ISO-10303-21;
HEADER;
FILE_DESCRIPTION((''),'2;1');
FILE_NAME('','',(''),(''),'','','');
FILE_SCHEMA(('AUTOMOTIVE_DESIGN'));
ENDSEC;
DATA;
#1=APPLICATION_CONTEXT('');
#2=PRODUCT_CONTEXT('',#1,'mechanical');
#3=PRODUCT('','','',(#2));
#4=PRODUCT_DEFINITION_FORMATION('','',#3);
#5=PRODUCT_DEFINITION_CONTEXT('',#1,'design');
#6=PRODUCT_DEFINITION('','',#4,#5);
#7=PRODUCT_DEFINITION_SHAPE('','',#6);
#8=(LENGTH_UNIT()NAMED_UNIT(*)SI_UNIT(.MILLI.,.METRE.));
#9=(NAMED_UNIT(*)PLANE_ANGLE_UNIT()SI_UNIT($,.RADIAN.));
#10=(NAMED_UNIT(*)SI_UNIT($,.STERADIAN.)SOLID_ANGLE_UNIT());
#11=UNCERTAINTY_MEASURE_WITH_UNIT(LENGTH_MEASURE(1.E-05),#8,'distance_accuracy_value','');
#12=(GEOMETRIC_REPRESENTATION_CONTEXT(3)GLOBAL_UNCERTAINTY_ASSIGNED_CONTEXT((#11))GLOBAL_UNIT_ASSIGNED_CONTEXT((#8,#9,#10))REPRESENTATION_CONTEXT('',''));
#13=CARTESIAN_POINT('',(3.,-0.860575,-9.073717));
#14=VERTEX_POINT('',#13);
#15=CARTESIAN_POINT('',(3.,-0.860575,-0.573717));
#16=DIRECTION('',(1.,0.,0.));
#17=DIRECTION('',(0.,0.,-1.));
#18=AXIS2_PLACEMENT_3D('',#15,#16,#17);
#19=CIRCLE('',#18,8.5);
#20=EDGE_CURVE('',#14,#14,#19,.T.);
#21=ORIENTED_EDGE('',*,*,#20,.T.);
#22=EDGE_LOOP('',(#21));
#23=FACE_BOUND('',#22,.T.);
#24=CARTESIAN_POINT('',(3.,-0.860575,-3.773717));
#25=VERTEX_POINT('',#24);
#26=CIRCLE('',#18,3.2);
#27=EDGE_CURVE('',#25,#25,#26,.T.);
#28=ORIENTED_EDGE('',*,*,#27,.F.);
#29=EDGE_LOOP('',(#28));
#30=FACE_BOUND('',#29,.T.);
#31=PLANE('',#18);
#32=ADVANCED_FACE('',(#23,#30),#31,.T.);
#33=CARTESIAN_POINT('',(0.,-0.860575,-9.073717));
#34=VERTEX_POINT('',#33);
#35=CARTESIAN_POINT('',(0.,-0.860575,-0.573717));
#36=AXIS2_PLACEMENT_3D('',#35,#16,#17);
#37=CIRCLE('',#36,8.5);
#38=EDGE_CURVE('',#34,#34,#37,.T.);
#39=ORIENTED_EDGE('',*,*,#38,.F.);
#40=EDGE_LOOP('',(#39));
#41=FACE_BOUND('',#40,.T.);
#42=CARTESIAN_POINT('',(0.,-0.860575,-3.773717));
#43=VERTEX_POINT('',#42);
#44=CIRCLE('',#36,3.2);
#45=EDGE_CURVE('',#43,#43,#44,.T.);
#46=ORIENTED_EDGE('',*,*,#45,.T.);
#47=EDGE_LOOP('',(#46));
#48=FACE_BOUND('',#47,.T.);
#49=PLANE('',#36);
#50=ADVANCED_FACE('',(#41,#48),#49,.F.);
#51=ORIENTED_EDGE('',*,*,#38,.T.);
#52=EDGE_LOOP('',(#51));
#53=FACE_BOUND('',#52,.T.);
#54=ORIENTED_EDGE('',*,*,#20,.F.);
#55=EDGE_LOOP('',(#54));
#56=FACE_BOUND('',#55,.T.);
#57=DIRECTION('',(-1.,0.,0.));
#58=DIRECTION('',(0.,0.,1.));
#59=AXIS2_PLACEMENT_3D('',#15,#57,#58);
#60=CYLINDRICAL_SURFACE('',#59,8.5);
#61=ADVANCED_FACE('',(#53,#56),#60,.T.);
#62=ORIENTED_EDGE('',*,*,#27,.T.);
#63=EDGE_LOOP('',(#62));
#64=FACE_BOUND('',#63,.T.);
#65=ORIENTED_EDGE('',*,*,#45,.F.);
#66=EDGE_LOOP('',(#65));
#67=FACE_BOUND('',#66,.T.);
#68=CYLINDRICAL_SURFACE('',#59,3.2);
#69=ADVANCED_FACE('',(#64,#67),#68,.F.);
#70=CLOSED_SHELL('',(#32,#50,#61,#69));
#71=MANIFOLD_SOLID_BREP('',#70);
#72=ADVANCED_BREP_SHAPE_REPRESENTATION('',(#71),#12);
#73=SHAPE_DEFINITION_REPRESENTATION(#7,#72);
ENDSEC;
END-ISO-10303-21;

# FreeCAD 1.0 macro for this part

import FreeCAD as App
import Part
import Sketcher

V = App.Vector

doc = App.newDocument("Part")
body = doc.addObject("PartDesign::Body", "Body")

# Sketch on YZ plane
sketch1 = body.newObject("Sketcher::SketchObject", "Sketch")
sketch1.AttachmentSupport = (doc.getObject("YZ_Plane"), [""])
sketch1.MapMode = "FlatFace"
sketch1.addGeometry([
    Part.Circle(V(-0.860575, -0.573717, 0), V(0, 0, 1), 8.5),
    Part.Circle(V(-0.860575, -0.573717, 0), V(0, 0, 1), 3.2),
], False)
sketch1.addConstraint([
    Sketcher.Constraint("Coincident", 1, 3, 0, 3),
    Sketcher.Constraint("Diameter", 0, 17.0),
    Sketcher.Constraint("Diameter", 1, 6.4),
    Sketcher.Constraint("DistanceX", 0, 3, -1, 1, 0.860575),
    Sketcher.Constraint("DistanceY", 0, 3, -1, 1, 0.573717),
])
pad1 = body.newObject("PartDesign::Pad", "Pad")
pad1.Profile = sketch1
pad1.Length = 3

doc.recompute()
